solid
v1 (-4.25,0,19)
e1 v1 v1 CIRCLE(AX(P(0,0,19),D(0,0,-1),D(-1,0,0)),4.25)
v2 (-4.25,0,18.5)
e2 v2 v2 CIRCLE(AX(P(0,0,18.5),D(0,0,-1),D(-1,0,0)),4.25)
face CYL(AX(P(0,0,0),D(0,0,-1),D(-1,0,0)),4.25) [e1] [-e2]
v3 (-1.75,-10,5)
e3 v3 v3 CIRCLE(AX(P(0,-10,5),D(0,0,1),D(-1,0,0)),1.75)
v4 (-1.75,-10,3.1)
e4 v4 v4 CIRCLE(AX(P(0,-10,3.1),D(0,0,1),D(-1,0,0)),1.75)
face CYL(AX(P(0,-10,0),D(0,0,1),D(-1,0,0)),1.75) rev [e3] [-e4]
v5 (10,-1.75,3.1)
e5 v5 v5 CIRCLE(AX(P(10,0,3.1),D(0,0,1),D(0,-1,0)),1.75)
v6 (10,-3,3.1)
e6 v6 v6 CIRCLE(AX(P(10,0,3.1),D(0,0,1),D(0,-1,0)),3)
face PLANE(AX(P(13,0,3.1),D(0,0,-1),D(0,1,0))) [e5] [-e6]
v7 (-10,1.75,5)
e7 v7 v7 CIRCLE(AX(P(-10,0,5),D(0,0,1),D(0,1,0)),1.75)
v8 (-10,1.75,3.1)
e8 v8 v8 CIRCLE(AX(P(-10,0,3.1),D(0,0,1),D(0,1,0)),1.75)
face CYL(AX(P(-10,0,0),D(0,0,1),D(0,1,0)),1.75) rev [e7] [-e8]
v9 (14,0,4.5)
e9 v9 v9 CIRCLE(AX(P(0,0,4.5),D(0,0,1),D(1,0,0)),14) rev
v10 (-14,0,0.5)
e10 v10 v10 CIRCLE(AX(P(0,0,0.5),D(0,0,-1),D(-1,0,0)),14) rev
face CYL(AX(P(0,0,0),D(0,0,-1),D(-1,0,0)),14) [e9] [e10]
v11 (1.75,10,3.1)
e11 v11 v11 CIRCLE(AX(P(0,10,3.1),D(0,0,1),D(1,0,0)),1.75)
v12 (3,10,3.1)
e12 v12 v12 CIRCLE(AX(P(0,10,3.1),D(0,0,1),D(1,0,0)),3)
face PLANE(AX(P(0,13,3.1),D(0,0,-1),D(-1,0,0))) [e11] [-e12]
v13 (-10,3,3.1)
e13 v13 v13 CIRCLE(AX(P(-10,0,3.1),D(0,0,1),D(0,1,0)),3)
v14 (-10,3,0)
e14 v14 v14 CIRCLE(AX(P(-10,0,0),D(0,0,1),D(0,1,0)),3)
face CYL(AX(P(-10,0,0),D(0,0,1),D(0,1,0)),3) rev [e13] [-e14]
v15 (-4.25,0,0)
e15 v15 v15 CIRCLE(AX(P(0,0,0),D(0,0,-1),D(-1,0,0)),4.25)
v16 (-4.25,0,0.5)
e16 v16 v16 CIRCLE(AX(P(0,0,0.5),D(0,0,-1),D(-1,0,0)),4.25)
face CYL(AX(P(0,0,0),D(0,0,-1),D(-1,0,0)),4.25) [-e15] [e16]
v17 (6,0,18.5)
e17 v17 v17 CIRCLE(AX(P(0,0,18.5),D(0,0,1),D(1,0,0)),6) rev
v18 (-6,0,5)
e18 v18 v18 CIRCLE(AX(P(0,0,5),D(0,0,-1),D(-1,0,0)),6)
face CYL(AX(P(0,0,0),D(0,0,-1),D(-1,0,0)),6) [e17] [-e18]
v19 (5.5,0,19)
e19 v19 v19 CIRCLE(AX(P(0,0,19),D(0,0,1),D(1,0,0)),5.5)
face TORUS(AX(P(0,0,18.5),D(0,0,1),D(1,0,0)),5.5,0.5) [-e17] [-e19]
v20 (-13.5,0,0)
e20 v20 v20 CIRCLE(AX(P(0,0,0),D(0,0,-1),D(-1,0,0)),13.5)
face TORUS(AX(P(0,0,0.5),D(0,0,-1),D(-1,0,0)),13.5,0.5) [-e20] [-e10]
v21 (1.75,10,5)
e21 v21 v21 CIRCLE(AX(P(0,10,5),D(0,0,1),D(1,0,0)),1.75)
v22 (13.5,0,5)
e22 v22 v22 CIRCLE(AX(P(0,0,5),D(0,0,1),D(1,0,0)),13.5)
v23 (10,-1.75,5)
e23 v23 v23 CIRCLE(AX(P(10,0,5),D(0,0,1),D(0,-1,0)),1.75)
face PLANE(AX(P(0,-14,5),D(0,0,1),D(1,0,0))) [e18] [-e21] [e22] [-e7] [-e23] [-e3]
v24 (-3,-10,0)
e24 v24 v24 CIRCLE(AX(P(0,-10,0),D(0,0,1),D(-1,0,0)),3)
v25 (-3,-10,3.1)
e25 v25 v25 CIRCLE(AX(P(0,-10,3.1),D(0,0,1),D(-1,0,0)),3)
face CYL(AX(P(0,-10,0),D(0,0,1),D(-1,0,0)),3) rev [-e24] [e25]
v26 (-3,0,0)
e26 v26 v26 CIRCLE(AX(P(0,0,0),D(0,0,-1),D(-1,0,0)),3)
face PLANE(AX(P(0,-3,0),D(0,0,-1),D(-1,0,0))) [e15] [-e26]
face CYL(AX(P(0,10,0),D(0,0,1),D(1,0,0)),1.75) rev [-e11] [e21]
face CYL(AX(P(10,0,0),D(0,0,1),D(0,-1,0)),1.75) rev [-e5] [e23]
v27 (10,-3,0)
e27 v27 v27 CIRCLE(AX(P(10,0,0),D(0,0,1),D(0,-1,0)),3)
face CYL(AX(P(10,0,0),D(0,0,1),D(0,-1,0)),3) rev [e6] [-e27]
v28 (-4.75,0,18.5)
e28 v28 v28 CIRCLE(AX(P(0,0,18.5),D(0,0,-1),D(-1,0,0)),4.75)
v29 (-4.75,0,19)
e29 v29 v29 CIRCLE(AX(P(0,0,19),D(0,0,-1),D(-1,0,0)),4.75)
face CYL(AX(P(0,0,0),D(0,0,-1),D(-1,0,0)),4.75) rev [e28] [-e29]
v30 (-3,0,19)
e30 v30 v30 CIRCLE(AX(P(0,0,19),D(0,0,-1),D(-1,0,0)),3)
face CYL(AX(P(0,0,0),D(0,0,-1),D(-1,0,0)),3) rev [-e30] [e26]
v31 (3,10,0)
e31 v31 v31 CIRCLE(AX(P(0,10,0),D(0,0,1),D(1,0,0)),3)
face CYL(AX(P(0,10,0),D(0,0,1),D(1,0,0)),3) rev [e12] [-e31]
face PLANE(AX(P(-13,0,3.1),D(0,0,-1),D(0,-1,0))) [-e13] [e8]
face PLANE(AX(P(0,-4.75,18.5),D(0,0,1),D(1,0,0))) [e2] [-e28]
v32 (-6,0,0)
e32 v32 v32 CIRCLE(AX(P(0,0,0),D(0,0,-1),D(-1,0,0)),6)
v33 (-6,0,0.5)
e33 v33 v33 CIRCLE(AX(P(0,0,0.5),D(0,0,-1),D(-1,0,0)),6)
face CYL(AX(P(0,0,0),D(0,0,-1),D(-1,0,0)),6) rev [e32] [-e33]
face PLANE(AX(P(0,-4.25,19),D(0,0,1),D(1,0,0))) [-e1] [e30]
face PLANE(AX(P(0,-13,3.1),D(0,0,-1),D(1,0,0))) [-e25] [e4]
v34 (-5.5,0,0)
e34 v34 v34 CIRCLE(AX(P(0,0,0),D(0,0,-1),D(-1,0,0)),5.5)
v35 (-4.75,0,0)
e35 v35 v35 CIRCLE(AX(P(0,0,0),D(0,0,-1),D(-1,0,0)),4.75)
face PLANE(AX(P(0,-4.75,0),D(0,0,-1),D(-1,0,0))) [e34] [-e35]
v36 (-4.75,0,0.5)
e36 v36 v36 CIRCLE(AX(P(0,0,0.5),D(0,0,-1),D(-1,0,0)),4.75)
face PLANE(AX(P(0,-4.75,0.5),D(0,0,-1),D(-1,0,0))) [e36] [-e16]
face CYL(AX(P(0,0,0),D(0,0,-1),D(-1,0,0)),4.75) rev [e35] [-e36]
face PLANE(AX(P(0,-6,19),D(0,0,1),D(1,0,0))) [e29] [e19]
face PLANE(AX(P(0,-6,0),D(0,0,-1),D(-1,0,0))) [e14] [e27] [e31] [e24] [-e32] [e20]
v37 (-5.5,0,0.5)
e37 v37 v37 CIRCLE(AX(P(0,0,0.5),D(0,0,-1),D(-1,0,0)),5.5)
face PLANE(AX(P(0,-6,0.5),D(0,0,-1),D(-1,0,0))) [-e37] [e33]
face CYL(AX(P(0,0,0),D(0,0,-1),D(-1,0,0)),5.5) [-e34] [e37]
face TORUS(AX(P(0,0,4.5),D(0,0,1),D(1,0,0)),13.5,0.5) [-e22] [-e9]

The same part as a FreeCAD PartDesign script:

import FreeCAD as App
import Part
import Sketcher
from FreeCAD import Vector


def edges_at(feature, points):
    """Names of the edges that pass closest to the given points."""
    edges = feature.Shape.Edges
    near = lambda p: min(range(len(edges)), key=lambda i: edges[i].distToShape(Part.Vertex(*p))[0])
    return sorted({f"Edge{near(p) + 1}" for p in points})


def add_polygon(sketch, points):
    """Adds a closed chain of lines whose ends are joined by coincident constraints."""
    first, n = sketch.GeometryCount, len(points)
    for a, b in zip(points, points[1:] + points[:1]):
        sketch.addGeometry(Part.LineSegment(App.Vector(*a, 0), App.Vector(*b, 0)), False)
    for i in range(n):
        sketch.addConstraint(Sketcher.Constraint("Coincident", first + i, 2, first + (i + 1) % n, 1))

doc = App.newDocument("Part")
body = doc.addObject("PartDesign::Body", "Body")

sketch1 = body.newObject("Sketcher::SketchObject", "Sketch")
sketch1.AttachmentSupport = (doc.getObject("YZ_Plane"), [""])
sketch1.MapMode = "FlatFace"
add_polygon(sketch1, [(-3, 0), (-4.2, 0), (-4.2, 0.5), (-4.8, 0.5), (-4.8, 0), (-5.5, 0), (-5.5, 0.5), (-6, 0.5), (-6, 0), (-14, 0), (-14, 5), (-6, 5), (-6, 19), (-4.8, 19), (-4.8, 18.5), (-4.2, 18.5), (-4.2, 19), (-3, 19)])
sketch1.addConstraint(Sketcher.Constraint("Horizontal", 0))
sketch1.addConstraint(Sketcher.Constraint("Vertical", 1))
sketch1.addConstraint(Sketcher.Constraint("Horizontal", 2))
sketch1.addConstraint(Sketcher.Constraint("Vertical", 3))
sketch1.addConstraint(Sketcher.Constraint("Horizontal", 4))
sketch1.addConstraint(Sketcher.Constraint("Vertical", 5))
sketch1.addConstraint(Sketcher.Constraint("Horizontal", 6))
sketch1.addConstraint(Sketcher.Constraint("Vertical", 7))
sketch1.addConstraint(Sketcher.Constraint("Horizontal", 8))
sketch1.addConstraint(Sketcher.Constraint("Vertical", 9))
sketch1.addConstraint(Sketcher.Constraint("Horizontal", 10))
sketch1.addConstraint(Sketcher.Constraint("Vertical", 11))
sketch1.addConstraint(Sketcher.Constraint("Horizontal", 12))
sketch1.addConstraint(Sketcher.Constraint("Vertical", 13))
sketch1.addConstraint(Sketcher.Constraint("Horizontal", 14))
sketch1.addConstraint(Sketcher.Constraint("Vertical", 15))
sketch1.addConstraint(Sketcher.Constraint("Horizontal", 16))
sketch1.addConstraint(Sketcher.Constraint("Vertical", 17))
sketch1.addConstraint(Sketcher.Constraint("PointOnObject", 0, 2, -1))
sketch1.addConstraint(Sketcher.Constraint("PointOnObject", 3, 2, -1))
sketch1.addConstraint(Sketcher.Constraint("PointOnObject", 7, 2, -1))
sketch1.addConstraint(Sketcher.Constraint("Horizontal", 2, 2, 5, 2))
sketch1.addConstraint(Sketcher.Constraint("Horizontal", 12, 2, 15, 2))
sketch1.addConstraint(Sketcher.Constraint("Vertical", 7, 2, 10, 2))
sketch1.addConstraint(Sketcher.Constraint("Vertical", 3, 2, 12, 2))
sketch1.addConstraint(Sketcher.Constraint("Vertical", 1, 2, 14, 2))
sketch1.addConstraint(Sketcher.Constraint("Equal", 2, 6))
sketch1.addConstraint(Sketcher.Constraint("Equal", 0, 12))
sketch1.addConstraint(Sketcher.Constraint("Equal", 14, 1))
sketch1.addConstraint(Sketcher.Constraint("Equal", 7, 13))
sketch1.addConstraint(Sketcher.Constraint("DistanceX", 8, 2, 8, 1, 8.0))
sketch1.addConstraint(Sketcher.Constraint("DistanceY", 9, 1, 9, 2, 5.0))
sketch1.addConstraint(Sketcher.Constraint("DistanceY", 11, 1, 11, 2, 14.0))
sketch1.addConstraint(Sketcher.Constraint("DistanceX", 2, 2, 2, 1, 0.5))
sketch1.addConstraint(Sketcher.Constraint("DistanceX", 6, 2, -1, 1, 6.0))
sketch1.addConstraint(Sketcher.Constraint("DistanceX", 16, 2, -1, 1, 3.0))
revolution = body.newObject("PartDesign::Revolution", "Revolution")
revolution.Profile = sketch1
revolution.ReferenceAxis = (sketch1, ["V_Axis"])
revolution.Angle = 360

sketch2 = body.newObject("Sketcher::SketchObject", "Sketch001")
sketch2.AttachmentSupport = (doc.getObject("YZ_Plane"), [""])
sketch2.MapMode = "FlatFace"
add_polygon(sketch2, [(13, 0), (13, 3.1), (11.8, 3.1), (11.8, 5), (10, 5), (10, 0)])
sketch2.addGeometry(Part.LineSegment(Vector(10, 5, 0), Vector(10, 0, 0)), True)
sketch2.addConstraint(Sketcher.Constraint("Vertical", 0))
sketch2.addConstraint(Sketcher.Constraint("Horizontal", 1))
sketch2.addConstraint(Sketcher.Constraint("Vertical", 2))
sketch2.addConstraint(Sketcher.Constraint("Horizontal", 3))
sketch2.addConstraint(Sketcher.Constraint("Vertical", 4))
sketch2.addConstraint(Sketcher.Constraint("Horizontal", 5))
sketch2.addConstraint(Sketcher.Constraint("Vertical", 6))
sketch2.addConstraint(Sketcher.Constraint("Coincident", 6, 1, 3, 2))
sketch2.addConstraint(Sketcher.Constraint("PointOnObject", 4, 2, -1))
sketch2.addConstraint(Sketcher.Constraint("PointOnObject", 6, 2, -1))
sketch2.addConstraint(Sketcher.Constraint("DistanceX", 5, 1, 5, 2, 3.0))
sketch2.addConstraint(Sketcher.Constraint("DistanceY", 4, 2, 4, 1, 5.0))
sketch2.addConstraint(Sketcher.Constraint("DistanceY", 0, 1, 0, 2, 3.1))
sketch2.addConstraint(Sketcher.Constraint("DistanceX", -1, 1, 0, 2, 13.0))
sketch2.addConstraint(Sketcher.Constraint("DistanceX", 1, 2, 1, 1, 1.25))
groove = body.newObject("PartDesign::Groove", "Groove")
groove.Profile = sketch2
groove.ReferenceAxis = (sketch2, ["Axis0"])
groove.Angle = 360
doc.recompute()

polarpattern = body.newObject("PartDesign::PolarPattern", "PolarPattern")
polarpattern.Originals = [groove]
polarpattern.Axis = (doc.getObject("Z_Axis"), [""])
polarpattern.Angle = 360
polarpattern.Occurrences = 4
body.Tip = polarpattern
doc.recompute()

fillet = body.newObject("PartDesign::Fillet", "Fillet")
fillet.Base = (polarpattern, edges_at(polarpattern, [(6, 0, 19), (14, 0, 5), (14, 0, 0)]))
fillet.Radius = 0.5

doc.recompute()
